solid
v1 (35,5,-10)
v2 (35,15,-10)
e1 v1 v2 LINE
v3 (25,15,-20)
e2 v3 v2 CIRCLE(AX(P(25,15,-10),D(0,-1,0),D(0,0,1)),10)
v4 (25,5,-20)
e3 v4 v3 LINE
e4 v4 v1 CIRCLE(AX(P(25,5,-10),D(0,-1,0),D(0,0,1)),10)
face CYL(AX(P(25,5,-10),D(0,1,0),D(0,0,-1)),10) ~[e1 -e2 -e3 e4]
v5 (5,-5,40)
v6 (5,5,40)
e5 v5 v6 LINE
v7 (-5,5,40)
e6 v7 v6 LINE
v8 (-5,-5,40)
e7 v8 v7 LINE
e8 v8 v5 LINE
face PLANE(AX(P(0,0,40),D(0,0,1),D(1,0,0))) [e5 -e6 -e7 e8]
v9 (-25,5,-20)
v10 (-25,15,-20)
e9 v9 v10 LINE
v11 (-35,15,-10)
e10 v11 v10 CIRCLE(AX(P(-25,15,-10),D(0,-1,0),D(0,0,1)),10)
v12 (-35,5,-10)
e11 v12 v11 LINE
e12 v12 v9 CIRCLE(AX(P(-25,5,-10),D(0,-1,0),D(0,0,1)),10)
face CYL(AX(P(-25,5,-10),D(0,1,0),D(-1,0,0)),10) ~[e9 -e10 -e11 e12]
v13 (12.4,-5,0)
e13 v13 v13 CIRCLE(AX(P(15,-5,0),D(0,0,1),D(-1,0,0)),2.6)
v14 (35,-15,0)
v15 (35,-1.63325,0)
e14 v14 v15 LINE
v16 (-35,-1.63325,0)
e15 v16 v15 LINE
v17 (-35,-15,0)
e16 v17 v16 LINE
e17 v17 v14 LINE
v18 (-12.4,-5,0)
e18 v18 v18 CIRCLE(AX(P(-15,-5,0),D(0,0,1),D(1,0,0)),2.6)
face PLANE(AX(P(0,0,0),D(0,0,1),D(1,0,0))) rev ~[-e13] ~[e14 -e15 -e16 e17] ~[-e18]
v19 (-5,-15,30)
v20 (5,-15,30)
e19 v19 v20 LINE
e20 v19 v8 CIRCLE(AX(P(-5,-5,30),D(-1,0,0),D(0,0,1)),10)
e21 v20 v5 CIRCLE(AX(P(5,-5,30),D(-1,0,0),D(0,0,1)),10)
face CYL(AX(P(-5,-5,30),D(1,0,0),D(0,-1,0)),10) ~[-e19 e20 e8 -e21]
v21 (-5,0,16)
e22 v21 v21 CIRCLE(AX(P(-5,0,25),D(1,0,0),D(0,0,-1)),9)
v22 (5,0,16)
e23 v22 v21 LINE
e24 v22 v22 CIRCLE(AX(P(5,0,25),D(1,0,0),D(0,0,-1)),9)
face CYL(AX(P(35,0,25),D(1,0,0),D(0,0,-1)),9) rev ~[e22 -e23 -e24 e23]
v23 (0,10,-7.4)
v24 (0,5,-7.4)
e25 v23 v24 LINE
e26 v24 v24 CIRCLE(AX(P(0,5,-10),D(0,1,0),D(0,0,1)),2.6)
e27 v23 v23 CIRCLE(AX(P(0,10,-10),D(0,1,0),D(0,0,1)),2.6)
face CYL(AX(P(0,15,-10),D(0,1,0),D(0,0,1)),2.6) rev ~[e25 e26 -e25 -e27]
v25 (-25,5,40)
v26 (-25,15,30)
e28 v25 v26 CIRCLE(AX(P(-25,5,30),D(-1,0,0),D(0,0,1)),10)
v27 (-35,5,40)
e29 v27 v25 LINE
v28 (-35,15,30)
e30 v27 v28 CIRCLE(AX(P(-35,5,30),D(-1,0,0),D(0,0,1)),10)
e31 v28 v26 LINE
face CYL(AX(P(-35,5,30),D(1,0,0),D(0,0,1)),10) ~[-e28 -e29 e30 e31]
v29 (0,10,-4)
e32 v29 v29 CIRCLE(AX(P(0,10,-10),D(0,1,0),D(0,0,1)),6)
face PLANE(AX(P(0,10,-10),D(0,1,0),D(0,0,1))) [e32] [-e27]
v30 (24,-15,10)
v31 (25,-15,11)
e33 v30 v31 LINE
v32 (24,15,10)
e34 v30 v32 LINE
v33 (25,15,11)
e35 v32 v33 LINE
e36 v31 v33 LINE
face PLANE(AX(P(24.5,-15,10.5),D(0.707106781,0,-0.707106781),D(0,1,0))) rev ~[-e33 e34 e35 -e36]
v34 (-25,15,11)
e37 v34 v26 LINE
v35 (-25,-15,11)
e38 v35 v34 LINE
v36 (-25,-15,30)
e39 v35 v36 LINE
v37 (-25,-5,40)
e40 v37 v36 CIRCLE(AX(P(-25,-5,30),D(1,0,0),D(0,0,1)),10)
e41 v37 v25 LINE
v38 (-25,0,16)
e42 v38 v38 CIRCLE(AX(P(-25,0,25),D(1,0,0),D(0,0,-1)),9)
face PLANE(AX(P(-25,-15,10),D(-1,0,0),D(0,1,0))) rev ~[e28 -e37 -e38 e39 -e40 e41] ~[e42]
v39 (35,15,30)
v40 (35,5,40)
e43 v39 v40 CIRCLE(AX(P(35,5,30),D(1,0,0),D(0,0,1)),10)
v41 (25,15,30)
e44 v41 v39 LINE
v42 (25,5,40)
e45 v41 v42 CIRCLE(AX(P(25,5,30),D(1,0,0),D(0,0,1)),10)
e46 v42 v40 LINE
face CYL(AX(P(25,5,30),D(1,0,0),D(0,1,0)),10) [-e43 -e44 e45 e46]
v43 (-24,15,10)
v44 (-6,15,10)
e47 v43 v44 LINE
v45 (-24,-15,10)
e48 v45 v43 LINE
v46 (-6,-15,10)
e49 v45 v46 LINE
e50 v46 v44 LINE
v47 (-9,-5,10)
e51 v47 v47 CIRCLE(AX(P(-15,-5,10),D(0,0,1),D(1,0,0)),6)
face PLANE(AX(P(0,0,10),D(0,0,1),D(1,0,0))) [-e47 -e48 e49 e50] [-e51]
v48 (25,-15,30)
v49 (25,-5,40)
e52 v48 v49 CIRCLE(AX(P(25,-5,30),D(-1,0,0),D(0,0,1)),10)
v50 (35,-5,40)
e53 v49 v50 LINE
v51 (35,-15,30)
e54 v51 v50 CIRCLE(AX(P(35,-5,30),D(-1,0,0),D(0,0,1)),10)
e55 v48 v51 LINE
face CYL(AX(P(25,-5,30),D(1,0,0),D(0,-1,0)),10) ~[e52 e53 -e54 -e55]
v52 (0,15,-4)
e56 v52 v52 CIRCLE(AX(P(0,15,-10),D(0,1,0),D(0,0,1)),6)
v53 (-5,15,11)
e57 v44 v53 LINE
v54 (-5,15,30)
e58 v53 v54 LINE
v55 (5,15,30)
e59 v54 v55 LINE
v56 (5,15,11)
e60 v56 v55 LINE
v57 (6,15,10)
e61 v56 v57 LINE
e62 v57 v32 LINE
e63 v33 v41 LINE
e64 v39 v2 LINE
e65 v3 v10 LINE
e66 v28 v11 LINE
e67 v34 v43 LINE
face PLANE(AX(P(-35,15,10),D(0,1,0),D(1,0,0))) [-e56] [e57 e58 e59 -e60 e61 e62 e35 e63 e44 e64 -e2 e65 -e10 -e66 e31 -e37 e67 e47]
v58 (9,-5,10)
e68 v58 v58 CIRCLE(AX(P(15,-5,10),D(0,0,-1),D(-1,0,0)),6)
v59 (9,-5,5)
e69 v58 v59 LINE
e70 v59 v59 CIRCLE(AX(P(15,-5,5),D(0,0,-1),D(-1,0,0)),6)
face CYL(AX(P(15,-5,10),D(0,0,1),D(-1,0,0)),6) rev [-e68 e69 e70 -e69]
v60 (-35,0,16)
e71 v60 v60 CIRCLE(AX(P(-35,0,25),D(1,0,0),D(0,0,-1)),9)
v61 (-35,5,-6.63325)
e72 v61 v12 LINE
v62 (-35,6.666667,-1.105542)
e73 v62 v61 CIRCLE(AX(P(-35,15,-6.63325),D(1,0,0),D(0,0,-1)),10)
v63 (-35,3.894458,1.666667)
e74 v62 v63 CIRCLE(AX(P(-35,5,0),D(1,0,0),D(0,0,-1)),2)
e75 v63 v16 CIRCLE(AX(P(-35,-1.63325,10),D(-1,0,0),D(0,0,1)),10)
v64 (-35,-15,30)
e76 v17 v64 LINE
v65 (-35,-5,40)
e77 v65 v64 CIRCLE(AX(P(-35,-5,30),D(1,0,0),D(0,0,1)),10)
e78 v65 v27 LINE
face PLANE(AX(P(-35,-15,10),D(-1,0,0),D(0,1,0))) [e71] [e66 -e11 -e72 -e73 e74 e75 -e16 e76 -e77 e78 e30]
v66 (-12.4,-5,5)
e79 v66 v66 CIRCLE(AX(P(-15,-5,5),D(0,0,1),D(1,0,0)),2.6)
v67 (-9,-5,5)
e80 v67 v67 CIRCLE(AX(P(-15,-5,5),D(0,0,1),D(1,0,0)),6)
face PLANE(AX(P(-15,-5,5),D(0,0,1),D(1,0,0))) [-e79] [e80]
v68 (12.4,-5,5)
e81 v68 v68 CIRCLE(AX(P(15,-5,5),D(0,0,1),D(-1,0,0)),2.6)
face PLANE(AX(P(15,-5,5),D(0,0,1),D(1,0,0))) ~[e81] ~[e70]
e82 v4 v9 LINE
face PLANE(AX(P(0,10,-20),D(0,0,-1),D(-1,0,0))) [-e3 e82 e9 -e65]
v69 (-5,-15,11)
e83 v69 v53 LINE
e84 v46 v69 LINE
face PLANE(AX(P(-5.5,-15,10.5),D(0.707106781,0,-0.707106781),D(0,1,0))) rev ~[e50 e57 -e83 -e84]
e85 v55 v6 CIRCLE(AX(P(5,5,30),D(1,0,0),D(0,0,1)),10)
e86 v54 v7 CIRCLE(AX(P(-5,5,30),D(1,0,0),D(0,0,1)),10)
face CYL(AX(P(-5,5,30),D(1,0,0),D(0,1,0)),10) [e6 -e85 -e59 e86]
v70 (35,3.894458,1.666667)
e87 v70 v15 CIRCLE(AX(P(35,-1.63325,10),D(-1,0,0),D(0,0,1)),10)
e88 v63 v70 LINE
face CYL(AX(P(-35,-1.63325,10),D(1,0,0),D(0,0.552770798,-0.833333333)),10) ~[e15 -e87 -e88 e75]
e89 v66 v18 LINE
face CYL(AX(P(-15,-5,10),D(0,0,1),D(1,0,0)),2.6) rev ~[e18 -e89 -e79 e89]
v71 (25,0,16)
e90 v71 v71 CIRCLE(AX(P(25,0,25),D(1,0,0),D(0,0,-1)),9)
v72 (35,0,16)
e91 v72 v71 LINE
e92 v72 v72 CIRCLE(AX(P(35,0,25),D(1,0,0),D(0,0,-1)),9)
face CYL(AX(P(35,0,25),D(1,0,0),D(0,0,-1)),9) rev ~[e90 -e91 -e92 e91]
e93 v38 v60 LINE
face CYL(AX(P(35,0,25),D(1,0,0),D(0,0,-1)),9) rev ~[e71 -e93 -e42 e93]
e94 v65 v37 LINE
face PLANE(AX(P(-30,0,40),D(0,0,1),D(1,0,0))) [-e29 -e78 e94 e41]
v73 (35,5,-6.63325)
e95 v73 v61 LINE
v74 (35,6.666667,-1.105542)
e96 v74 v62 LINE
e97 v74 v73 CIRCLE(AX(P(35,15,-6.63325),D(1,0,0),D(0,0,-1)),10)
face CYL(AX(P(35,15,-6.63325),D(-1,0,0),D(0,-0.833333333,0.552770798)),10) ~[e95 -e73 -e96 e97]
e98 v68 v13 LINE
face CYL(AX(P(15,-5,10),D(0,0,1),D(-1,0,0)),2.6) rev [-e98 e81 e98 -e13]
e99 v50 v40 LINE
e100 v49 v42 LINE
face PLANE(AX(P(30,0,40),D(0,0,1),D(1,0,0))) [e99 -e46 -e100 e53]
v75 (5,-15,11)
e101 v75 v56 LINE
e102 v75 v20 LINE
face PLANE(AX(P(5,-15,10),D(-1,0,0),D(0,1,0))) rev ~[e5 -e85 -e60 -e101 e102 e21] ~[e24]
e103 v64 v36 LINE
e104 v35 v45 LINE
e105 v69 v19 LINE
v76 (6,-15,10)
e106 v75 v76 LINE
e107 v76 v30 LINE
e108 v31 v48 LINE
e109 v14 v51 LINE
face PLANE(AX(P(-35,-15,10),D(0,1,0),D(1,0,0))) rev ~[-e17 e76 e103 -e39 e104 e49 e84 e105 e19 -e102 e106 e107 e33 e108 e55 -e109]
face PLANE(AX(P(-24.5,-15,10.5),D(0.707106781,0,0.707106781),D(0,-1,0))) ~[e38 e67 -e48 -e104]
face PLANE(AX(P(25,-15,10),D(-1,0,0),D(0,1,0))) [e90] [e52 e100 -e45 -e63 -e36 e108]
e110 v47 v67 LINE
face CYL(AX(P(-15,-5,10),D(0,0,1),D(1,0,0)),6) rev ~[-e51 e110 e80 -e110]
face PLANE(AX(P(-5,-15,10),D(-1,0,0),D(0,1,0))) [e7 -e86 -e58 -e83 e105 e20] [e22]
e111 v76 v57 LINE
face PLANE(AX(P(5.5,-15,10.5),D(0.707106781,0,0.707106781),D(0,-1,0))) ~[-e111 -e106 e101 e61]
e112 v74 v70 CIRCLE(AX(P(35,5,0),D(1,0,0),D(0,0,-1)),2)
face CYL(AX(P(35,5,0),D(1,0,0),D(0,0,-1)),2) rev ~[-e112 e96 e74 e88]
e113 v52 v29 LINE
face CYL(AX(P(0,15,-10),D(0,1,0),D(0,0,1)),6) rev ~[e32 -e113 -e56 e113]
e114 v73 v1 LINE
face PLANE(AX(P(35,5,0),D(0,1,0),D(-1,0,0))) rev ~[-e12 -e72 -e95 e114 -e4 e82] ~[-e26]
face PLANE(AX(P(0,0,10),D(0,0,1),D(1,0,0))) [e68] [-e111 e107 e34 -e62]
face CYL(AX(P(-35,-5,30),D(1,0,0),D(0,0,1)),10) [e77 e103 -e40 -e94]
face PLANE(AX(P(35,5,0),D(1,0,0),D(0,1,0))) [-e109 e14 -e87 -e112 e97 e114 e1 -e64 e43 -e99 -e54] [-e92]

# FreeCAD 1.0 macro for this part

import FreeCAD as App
import Part
import Sketcher

V = App.Vector
Q = App.Units.Quantity


def edges_at(feature, points):
    """Names of the edges that pass closest to the given points."""
    edges = feature.Shape.Edges
    near = lambda p: min(range(len(edges)), key=lambda i: edges[i].distToShape(Part.Vertex(*p))[0])
    return sorted({f"Edge{near(p) + 1}" for p in points})


def add_polygon(sketch, points):
    """Adds a closed chain of lines whose ends are joined by coincident constraints."""
    first, n = sketch.GeometryCount, len(points)
    for a, b in zip(points, points[1:] + points[:1]):
        sketch.addGeometry(Part.LineSegment(App.Vector(*a, 0), App.Vector(*b, 0)), False)
    for i in range(n):
        sketch.addConstraint(Sketcher.Constraint("Coincident", first + i, 2, first + (i + 1) % n, 1))

doc = App.newDocument("Part")
body = doc.addObject("PartDesign::Body", "Body")

# Sketch on XY plane
sketch1 = body.newObject("Sketcher::SketchObject", "Sketch")
sketch1.AttachmentSupport = (doc.getObject("XY_Plane"), [""])
sketch1.MapMode = "FlatFace"
add_polygon(sketch1, [(-35, 15), (-35, -15), (35, -15), (35, 15)])  # lines 0-3
sketch1.addConstraint([
    Sketcher.Constraint("Vertical", 0),
    Sketcher.Constraint("Horizontal", 1),
    Sketcher.Constraint("Vertical", 2),
    Sketcher.Constraint("Horizontal", 3),
    Sketcher.Constraint("Symmetric", 0, 2, 2, 2, -1, 1),
    Sketcher.Constraint("DistanceX", 1, 1, 1, 2, Q("70 mm")),
    Sketcher.Constraint("DistanceY", 0, 2, 0, 1, Q("30 mm")),
])
pad1 = body.newObject("PartDesign::Pad", "Pad")
pad1.Profile = sketch1
pad1.Length = 10

# Sketch on XY plane
sketch2 = body.newObject("Sketcher::SketchObject", "Sketch001")
sketch2.AttachmentSupport = (doc.getObject("XY_Plane"), [""])
sketch2.MapMode = "FlatFace"
add_polygon(sketch2, [(35, 15), (35, 5), (-35, 5), (-35, 15)])  # lines 0-3
sketch2.addConstraint([
    Sketcher.Constraint("Vertical", 0),
    Sketcher.Constraint("Horizontal", 1),
    Sketcher.Constraint("Vertical", 2),
    Sketcher.Constraint("Horizontal", 3),
    Sketcher.Constraint("DistanceX", 1, 2, 1, 1, Q("70 mm")),
    Sketcher.Constraint("DistanceY", 0, 2, 0, 1, Q("10 mm")),
    Sketcher.Constraint("DistanceX", -1, 1, 0, 2, Q("35 mm")),
    Sketcher.Constraint("DistanceY", -1, 1, 0, 2, Q("5 mm")),
])
pad2 = body.newObject("PartDesign::Pad", "Pad001")
pad2.Profile = sketch2
pad2.Length = 20
pad2.Reversed = True

# Sketch on YZ plane
sketch3 = body.newObject("Sketcher::SketchObject", "Sketch002")
sketch3.AttachmentSupport = (doc.getObject("YZ_Plane"), [""])
sketch3.MapMode = "FlatFace"
sketch3.AttachmentOffset = App.Placement(V(0, 0, 35), App.Rotation())
sketch3.addGeometry(Part.Circle(V(5, 0, 0), V(0, 0, 1), 2), False)
sketch3.addConstraint([
    Sketcher.Constraint("PointOnObject", 0, 3, -1),
    Sketcher.Constraint("Diameter", 0, Q("4 mm")),
    Sketcher.Constraint("DistanceX", -1, 1, 0, 3, Q("5 mm")),
])
pocket1 = body.newObject("PartDesign::Pocket", "Pocket")
pocket1.Profile = sketch3
pocket1.Type = "ThroughAll"
doc.recompute()

fillet = body.newObject("PartDesign::Fillet", "Fillet")
fillet.Base = (pocket1, edges_at(pocket1, [(0, 5, -2), (0, 3, 0)]))
fillet.Radius = 10

# Sketch on XY plane
sketch4 = body.newObject("Sketcher::SketchObject", "Sketch003")
sketch4.AttachmentSupport = (doc.getObject("XY_Plane"), [""])
sketch4.MapMode = "FlatFace"
sketch4.AttachmentOffset = App.Placement(V(0, 0, 10), App.Rotation())
add_polygon(sketch4, [(-35, 15), (-35, -15), (-25, -15), (-25, 15)])  # lines 0-3
add_polygon(sketch4, [(-5, 15), (-5, -15), (5, -15), (5, 15)])  # lines 4-7
add_polygon(sketch4, [(25, 15), (25, -15), (35, -15), (35, 15)])  # lines 8-11
sketch4.addConstraint([
    Sketcher.Constraint("Vertical", 0),
    Sketcher.Constraint("Horizontal", 1),
    Sketcher.Constraint("Vertical", 2),
    Sketcher.Constraint("Horizontal", 3),
    Sketcher.Constraint("Vertical", 4),
    Sketcher.Constraint("Horizontal", 5),
    Sketcher.Constraint("Vertical", 6),
    Sketcher.Constraint("Horizontal", 7),
    Sketcher.Constraint("Vertical", 8),
    Sketcher.Constraint("Horizontal", 9),
    Sketcher.Constraint("Vertical", 10),
    Sketcher.Constraint("Horizontal", 11),
    Sketcher.Constraint("Symmetric", 4, 2, 6, 2, -1, 1),
    Sketcher.Constraint("Symmetric", 2, 2, 8, 2, -1, 1),
    Sketcher.Constraint("Symmetric", 0, 2, 10, 2, -1, 1),
    Sketcher.Constraint("Horizontal", 1, 2, 4, 2),
    Sketcher.Constraint("Horizontal", 3, 2, 6, 2),
    Sketcher.Constraint("Equal", 3, 5),
    Sketcher.Constraint("DistanceX", 1, 1, 1, 2, Q("10 mm")),
    Sketcher.Constraint("DistanceY", 0, 2, 0, 1, Q("30 mm")),
    Sketcher.Constraint("DistanceX", 0, 2, -1, 1, Q("35 mm")),
])
pad3 = body.newObject("PartDesign::Pad", "Pad002")
pad3.Profile = sketch4
pad3.Length = 30

# Sketch on XY plane
sketch5 = body.newObject("Sketcher::SketchObject", "Sketch004")
sketch5.AttachmentSupport = (doc.getObject("XY_Plane"), [""])
sketch5.MapMode = "FlatFace"
sketch5.AttachmentOffset = App.Placement(V(0, 0, 10), App.Rotation())
sketch5.addGeometry(Part.Circle(V(-15, -5, 0), V(0, 0, 1), 2.6), False)
sketch5.addConstraint([
    Sketcher.Constraint("Diameter", 0, Q("5.2 mm")),
    Sketcher.Constraint("DistanceX", 0, 3, -1, 1, Q("15 mm")),
    Sketcher.Constraint("DistanceY", 0, 3, -1, 1, Q("5 mm")),
])
pocket2 = body.newObject("PartDesign::Pocket", "Pocket001")
pocket2.Profile = sketch5
pocket2.Type = "ThroughAll"

# Sketch on XY plane
sketch6 = body.newObject("Sketcher::SketchObject", "Sketch005")
sketch6.AttachmentSupport = (doc.getObject("XY_Plane"), [""])
sketch6.MapMode = "FlatFace"
sketch6.AttachmentOffset = App.Placement(V(0, 0, 10), App.Rotation())
sketch6.addGeometry(Part.Circle(V(-15, -5, 0), V(0, 0, 1), 6), False)
sketch6.addConstraint([
    Sketcher.Constraint("Diameter", 0, Q("12 mm")),
    Sketcher.Constraint("DistanceX", 0, 3, -1, 1, Q("15 mm")),
    Sketcher.Constraint("DistanceY", 0, 3, -1, 1, Q("5 mm")),
])
pocket3 = body.newObject("PartDesign::Pocket", "Pocket002")
pocket3.Profile = sketch6
pocket3.Length = 5
doc.recompute()

mirrored = body.newObject("PartDesign::Mirrored", "Mirrored")
mirrored.Originals = [pocket2, pocket3]
mirrored.MirrorPlane = (doc.getObject("YZ_Plane"), [""])
body.Tip = mirrored

# Sketch on XZ plane
sketch7 = body.newObject("Sketcher::SketchObject", "Sketch006")
sketch7.AttachmentSupport = (doc.getObject("XZ_Plane"), [""])
sketch7.MapMode = "FlatFace"
sketch7.AttachmentOffset = App.Placement(V(0, 0, -15), App.Rotation())
sketch7.addGeometry(Part.Circle(V(0, -10, 0), V(0, 0, 1), 2.6), False)
sketch7.addConstraint([
    Sketcher.Constraint("PointOnObject", 0, 3, -2),
    Sketcher.Constraint("Diameter", 0, Q("5.2 mm")),
    Sketcher.Constraint("DistanceY", 0, 3, -1, 1, Q("10 mm")),
])
pocket4 = body.newObject("PartDesign::Pocket", "Pocket003")
pocket4.Profile = sketch7
pocket4.Type = "ThroughAll"
pocket4.Reversed = True

# Sketch on XZ plane
sketch8 = body.newObject("Sketcher::SketchObject", "Sketch007")
sketch8.AttachmentSupport = (doc.getObject("XZ_Plane"), [""])
sketch8.MapMode = "FlatFace"
sketch8.AttachmentOffset = App.Placement(V(0, 0, -15), App.Rotation())
sketch8.addGeometry(Part.Circle(V(0, -10, 0), V(0, 0, 1), 6), False)
sketch8.addConstraint([
    Sketcher.Constraint("PointOnObject", 0, 3, -2),
    Sketcher.Constraint("Diameter", 0, Q("12 mm")),
    Sketcher.Constraint("DistanceY", 0, 3, -1, 1, Q("10 mm")),
])
pocket5 = body.newObject("PartDesign::Pocket", "Pocket004")
pocket5.Profile = sketch8
pocket5.Length = 5
pocket5.Reversed = True
doc.recompute()

fillet2 = body.newObject("PartDesign::Fillet", "Fillet001")
fillet2.Base = (pocket5, edges_at(pocket5, [
    (35, 10, -20),
    (-35, 10, -20),
    (-30, -15, 40),
    (-30, 15, 40),
    (0, -15, 40),
    (0, 15, 40),
    (30, 15, 40),
    (30, -15, 40),
]))
fillet2.Radius = 10

# Sketch on YZ plane
sketch9 = body.newObject("Sketcher::SketchObject", "Sketch008")
sketch9.AttachmentSupport = (doc.getObject("YZ_Plane"), [""])
sketch9.MapMode = "FlatFace"
sketch9.AttachmentOffset = App.Placement(V(0, 0, 35), App.Rotation())
sketch9.addGeometry(Part.Circle(V(0, 25, 0), V(0, 0, 1), 9), False)
sketch9.addConstraint([
    Sketcher.Constraint("PointOnObject", 0, 3, -2),
    Sketcher.Constraint("Diameter", 0, Q("18 mm")),
    Sketcher.Constraint("DistanceY", -1, 1, 0, 3, Q("25 mm")),
])
pocket6 = body.newObject("PartDesign::Pocket", "Pocket005")
pocket6.Profile = sketch9
pocket6.Type = "ThroughAll"
doc.recompute()

chamfer = body.newObject("PartDesign::Chamfer", "Chamfer")
chamfer.Base = (pocket6, edges_at(pocket6, [
    (-25, 0, 10),
    (-5, 0, 10),
    (5, 0, 10),
    (25, 0, 10),
]))
chamfer.Size = 1

doc.recompute()
